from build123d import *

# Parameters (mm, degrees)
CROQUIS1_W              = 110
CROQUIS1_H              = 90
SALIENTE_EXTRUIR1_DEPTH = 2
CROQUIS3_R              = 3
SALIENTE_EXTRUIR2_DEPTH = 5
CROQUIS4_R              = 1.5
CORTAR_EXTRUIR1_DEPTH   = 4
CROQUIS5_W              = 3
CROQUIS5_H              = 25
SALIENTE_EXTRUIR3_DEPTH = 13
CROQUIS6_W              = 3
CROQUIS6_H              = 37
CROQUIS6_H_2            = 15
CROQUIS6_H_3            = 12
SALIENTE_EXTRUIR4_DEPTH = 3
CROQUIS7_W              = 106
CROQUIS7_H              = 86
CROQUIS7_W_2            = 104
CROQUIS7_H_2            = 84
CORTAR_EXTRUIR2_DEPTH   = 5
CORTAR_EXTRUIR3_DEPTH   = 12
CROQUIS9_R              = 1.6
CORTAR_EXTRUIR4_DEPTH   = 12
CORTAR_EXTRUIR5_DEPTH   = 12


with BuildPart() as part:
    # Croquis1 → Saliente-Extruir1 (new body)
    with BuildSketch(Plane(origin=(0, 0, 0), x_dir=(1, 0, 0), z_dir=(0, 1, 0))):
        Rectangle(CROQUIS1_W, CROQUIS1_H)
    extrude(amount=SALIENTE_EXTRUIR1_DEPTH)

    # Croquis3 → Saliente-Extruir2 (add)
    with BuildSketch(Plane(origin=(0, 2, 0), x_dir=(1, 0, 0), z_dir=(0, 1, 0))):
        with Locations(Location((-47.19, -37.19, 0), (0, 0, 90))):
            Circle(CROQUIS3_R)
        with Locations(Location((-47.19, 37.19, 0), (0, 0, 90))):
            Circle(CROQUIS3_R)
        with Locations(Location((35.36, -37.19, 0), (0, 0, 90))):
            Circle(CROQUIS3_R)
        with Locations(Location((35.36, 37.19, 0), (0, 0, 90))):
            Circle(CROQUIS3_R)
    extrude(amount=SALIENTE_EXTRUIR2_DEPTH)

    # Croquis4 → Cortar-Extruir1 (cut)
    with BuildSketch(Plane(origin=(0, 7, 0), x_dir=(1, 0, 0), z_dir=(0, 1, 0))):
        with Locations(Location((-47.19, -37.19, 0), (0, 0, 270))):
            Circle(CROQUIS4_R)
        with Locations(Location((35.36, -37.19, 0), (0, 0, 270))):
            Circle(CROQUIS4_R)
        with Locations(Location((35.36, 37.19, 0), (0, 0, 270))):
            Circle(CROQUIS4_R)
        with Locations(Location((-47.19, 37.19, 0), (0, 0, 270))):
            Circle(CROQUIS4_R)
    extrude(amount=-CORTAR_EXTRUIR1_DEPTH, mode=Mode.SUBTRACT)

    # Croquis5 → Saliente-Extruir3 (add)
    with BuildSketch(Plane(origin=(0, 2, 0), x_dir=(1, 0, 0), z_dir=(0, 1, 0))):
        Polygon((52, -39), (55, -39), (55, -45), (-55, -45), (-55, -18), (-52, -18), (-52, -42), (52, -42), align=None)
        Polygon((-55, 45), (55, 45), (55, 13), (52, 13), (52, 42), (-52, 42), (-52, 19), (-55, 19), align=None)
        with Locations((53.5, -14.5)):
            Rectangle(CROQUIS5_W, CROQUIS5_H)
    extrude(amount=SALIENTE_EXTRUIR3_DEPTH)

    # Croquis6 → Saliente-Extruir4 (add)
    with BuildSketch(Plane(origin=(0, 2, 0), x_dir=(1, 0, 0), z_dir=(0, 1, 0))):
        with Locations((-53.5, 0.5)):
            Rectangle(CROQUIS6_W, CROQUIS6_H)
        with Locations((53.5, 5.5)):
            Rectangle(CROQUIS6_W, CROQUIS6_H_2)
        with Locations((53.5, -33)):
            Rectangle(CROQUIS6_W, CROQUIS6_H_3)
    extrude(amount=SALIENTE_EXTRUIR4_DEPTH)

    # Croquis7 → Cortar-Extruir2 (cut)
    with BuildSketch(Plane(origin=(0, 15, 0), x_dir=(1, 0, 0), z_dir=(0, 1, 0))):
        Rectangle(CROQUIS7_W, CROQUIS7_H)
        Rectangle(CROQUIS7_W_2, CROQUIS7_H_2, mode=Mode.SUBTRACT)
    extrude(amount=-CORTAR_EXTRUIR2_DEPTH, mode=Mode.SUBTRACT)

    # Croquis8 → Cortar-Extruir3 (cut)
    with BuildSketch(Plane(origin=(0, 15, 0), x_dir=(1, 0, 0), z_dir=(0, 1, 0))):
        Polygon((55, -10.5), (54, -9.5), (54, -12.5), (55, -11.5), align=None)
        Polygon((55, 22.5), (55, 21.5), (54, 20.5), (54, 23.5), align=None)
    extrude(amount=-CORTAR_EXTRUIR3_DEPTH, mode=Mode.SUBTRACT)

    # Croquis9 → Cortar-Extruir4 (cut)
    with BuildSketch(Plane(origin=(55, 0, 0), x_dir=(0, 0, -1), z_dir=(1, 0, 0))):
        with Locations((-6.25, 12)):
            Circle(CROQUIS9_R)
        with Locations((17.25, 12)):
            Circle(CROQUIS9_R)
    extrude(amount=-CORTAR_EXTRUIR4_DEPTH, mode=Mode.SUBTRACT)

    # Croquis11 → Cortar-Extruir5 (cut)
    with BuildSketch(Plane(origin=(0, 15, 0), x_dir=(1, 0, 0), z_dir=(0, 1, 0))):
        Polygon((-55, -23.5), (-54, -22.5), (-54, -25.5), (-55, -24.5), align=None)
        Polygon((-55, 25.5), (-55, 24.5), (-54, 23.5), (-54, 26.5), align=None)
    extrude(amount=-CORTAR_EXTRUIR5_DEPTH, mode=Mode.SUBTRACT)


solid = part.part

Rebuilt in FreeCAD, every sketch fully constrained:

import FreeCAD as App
import Part
import Sketcher
from FreeCAD import Vector


def add_polygon(sketch, points):
    """Adds a closed chain of lines whose ends are joined by coincident constraints."""
    first, n = sketch.GeometryCount, len(points)
    for a, b in zip(points, points[1:] + points[:1]):
        sketch.addGeometry(Part.LineSegment(App.Vector(*a, 0), App.Vector(*b, 0)), False)
    for i in range(n):
        sketch.addConstraint(Sketcher.Constraint("Coincident", first + i, 2, first + (i + 1) % n, 1))

doc = App.newDocument("Part")
params = doc.addObject("Spreadsheet::Sheet", "Params")
for row, (alias, value) in enumerate([
    ("sketch1_width", "110 mm"),
    ("sketch1_height", "90 mm"),
    ("pad1_length", "2 mm"),
    ("sketch2_diameter", "6 mm"),
    ("pad2_length", "5 mm"),
    ("sketch3_diameter", "3 mm"),
    ("pocket1_length", "4 mm"),
    ("sketch4_width", "3 mm"),
    ("sketch4_width2", "104 mm"),
    ("sketch4_height", "24 mm"),
    ("sketch4_height2", "27 mm"),
    ("sketch4_height3", "26 mm"),
    ("pad3_length", "13 mm"),
    ("sketch5_width", "3 mm"),
    ("sketch5_height", "37 mm"),
    ("sketch5_height2", "15 mm"),
    ("sketch5_height3", "12 mm"),
    ("pad4_length", "3 mm"),
    ("sketch6_width", "106 mm"),
    ("sketch6_width2", "104 mm"),
    ("sketch6_height", "86 mm"),
    ("sketch6_height2", "84 mm"),
    ("pocket2_length", "5 mm"),
    ("sketch7_height", "3 mm"),
    ("sketch7_height2", "1 mm"),
    ("pocket3_length", "12 mm"),
    ("sketch8_diameter", "3.2 mm"),
    ("pocket4_length", "12 mm"),
    ("sketch9_height", "1 mm"),
    ("sketch9_height2", "3 mm"),
    ("pocket5_length", "12 mm"),
], start=1):
    params.set(f"A{row}", alias)
    params.set(f"B{row}", "=" + value)
    params.setAlias(f"B{row}", alias)

body = doc.addObject("PartDesign::Body", "Body")

sketch1 = body.newObject("Sketcher::SketchObject", "Sketch")
sketch1.AttachmentSupport = (doc.getObject("XZ_Plane"), [""])
sketch1.MapMode = "FlatFace"
add_polygon(sketch1, [(-55, -45), (-55, 45), (55, 45), (55, -45)])
sketch1.addConstraint(Sketcher.Constraint("Vertical", 0))
sketch1.addConstraint(Sketcher.Constraint("Horizontal", 1))
sketch1.addConstraint(Sketcher.Constraint("Vertical", 2))
sketch1.addConstraint(Sketcher.Constraint("Horizontal", 3))
sketch1.addConstraint(Sketcher.Constraint("Symmetric", 0, 2, 2, 2, -1, 1))
sketch1.addConstraint(Sketcher.Constraint("DistanceX", 1, 1, 1, 2, 110.0))
sketch1.addConstraint(Sketcher.Constraint("DistanceY", 0, 1, 0, 2, 90.0))
sketch1.setExpression("Constraints[9]", "Params.sketch1_width")
sketch1.setExpression("Constraints[10]", "Params.sketch1_height")
pad1 = body.newObject("PartDesign::Pad", "Pad")
pad1.Profile = sketch1
pad1.setExpression("Length", "Params.pad1_length")
pad1.Reversed = True

sketch2 = body.newObject("Sketcher::SketchObject", "Sketch001")
sketch2.AttachmentSupport = (doc.getObject("XZ_Plane"), [""])
sketch2.MapMode = "FlatFace"
sketch2.AttachmentOffset = App.Placement(Vector(0, 0, -2), App.Rotation())
sketch2.addGeometry(Part.Circle(Vector(-47.2, 37.2, 0), Vector(0, 0, 1), 3), False)
sketch2.addGeometry(Part.Circle(Vector(-47.2, -37.2, 0), Vector(0, 0, 1), 3), False)
sketch2.addGeometry(Part.Circle(Vector(35.4, 37.2, 0), Vector(0, 0, 1), 3), False)
sketch2.addGeometry(Part.Circle(Vector(35.4, -37.2, 0), Vector(0, 0, 1), 3), False)
sketch2.addConstraint(Sketcher.Constraint("Equal", 0, 1))
sketch2.addConstraint(Sketcher.Constraint("Equal", 1, 2))
sketch2.addConstraint(Sketcher.Constraint("Equal", 2, 3))
sketch2.addConstraint(Sketcher.Constraint("Symmetric", 0, 3, 1, 3, -1))
sketch2.addConstraint(Sketcher.Constraint("Symmetric", 2, 3, 3, 3, -1))
sketch2.addConstraint(Sketcher.Constraint("Horizontal", 0, 3, 2, 3))
sketch2.addConstraint(Sketcher.Constraint("Diameter", 0, 6.0))
sketch2.addConstraint(Sketcher.Constraint("DistanceX", 0, 3, -1, 1, 47.19))
sketch2.addConstraint(Sketcher.Constraint("DistanceY", -1, 1, 0, 3, 37.19))
sketch2.addConstraint(Sketcher.Constraint("DistanceX", -1, 1, 2, 3, 35.36))
sketch2.setExpression("Constraints[6]", "Params.sketch2_diameter")
pad2 = body.newObject("PartDesign::Pad", "Pad001")
pad2.Profile = sketch2
pad2.setExpression("Length", "Params.pad2_length")
pad2.Reversed = True

sketch3 = body.newObject("Sketcher::SketchObject", "Sketch002")
sketch3.AttachmentSupport = (doc.getObject("XZ_Plane"), [""])
sketch3.MapMode = "FlatFace"
sketch3.AttachmentOffset = App.Placement(Vector(0, 0, -7), App.Rotation())
sketch3.addGeometry(Part.Circle(Vector(-47.2, 37.2, 0), Vector(0, 0, 1), 1.5), False)
sketch3.addGeometry(Part.Circle(Vector(35.4, 37.2, 0), Vector(0, 0, 1), 1.5), False)
sketch3.addGeometry(Part.Circle(Vector(35.4, -37.2, 0), Vector(0, 0, 1), 1.5), False)
sketch3.addGeometry(Part.Circle(Vector(-47.2, -37.2, 0), Vector(0, 0, 1), 1.5), False)
sketch3.addConstraint(Sketcher.Constraint("Equal", 0, 1))
sketch3.addConstraint(Sketcher.Constraint("Equal", 1, 2))
sketch3.addConstraint(Sketcher.Constraint("Equal", 2, 3))
sketch3.addConstraint(Sketcher.Constraint("Symmetric", 1, 3, 2, 3, -1))
sketch3.addConstraint(Sketcher.Constraint("Symmetric", 0, 3, 3, 3, -1))
sketch3.addConstraint(Sketcher.Constraint("Horizontal", 0, 3, 1, 3))
sketch3.addConstraint(Sketcher.Constraint("Diameter", 0, 3.0))
sketch3.addConstraint(Sketcher.Constraint("DistanceX", 0, 3, -1, 1, 47.19))
sketch3.addConstraint(Sketcher.Constraint("DistanceY", -1, 1, 0, 3, 37.19))
sketch3.addConstraint(Sketcher.Constraint("DistanceX", -1, 1, 1, 3, 35.36))
sketch3.setExpression("Constraints[6]", "Params.sketch3_diameter")
pocket1 = body.newObject("PartDesign::Pocket", "Pocket")
pocket1.Profile = sketch3
pocket1.setExpression("Length", "Params.pocket1_length")
pocket1.Reversed = True

sketch4 = body.newObject("Sketcher::SketchObject", "Sketch003")
sketch4.AttachmentSupport = (doc.getObject("XZ_Plane"), [""])
sketch4.MapMode = "FlatFace"
sketch4.AttachmentOffset = App.Placement(Vector(0, 0, -2), App.Rotation())
add_polygon(sketch4, [(55, 39), (52, 39), (52, 42), (-52, 42), (-52, 18), (-55, 18), (-55, 45), (55, 45)])
add_polygon(sketch4, [(55, -45), (-55, -45), (-55, -19), (-52, -19), (-52, -42), (52, -42), (52, -13), (55, -13)])
add_polygon(sketch4, [(52, 2), (52, 27), (55, 27), (55, 2)])
sketch4.addConstraint(Sketcher.Constraint("Horizontal", 0))
sketch4.addConstraint(Sketcher.Constraint("Vertical", 1))
sketch4.addConstraint(Sketcher.Constraint("Horizontal", 2))
sketch4.addConstraint(Sketcher.Constraint("Vertical", 3))
sketch4.addConstraint(Sketcher.Constraint("Horizontal", 4))
sketch4.addConstraint(Sketcher.Constraint("Vertical", 5))
sketch4.addConstraint(Sketcher.Constraint("Horizontal", 6))
sketch4.addConstraint(Sketcher.Constraint("Vertical", 7))
sketch4.addConstraint(Sketcher.Constraint("Horizontal", 8))
sketch4.addConstraint(Sketcher.Constraint("Vertical", 9))
sketch4.addConstraint(Sketcher.Constraint("Horizontal", 10))
sketch4.addConstraint(Sketcher.Constraint("Vertical", 11))
sketch4.addConstraint(Sketcher.Constraint("Horizontal", 12))
sketch4.addConstraint(Sketcher.Constraint("Vertical", 13))
sketch4.addConstraint(Sketcher.Constraint("Horizontal", 14))
sketch4.addConstraint(Sketcher.Constraint("Vertical", 15))
sketch4.addConstraint(Sketcher.Constraint("Vertical", 16))
sketch4.addConstraint(Sketcher.Constraint("Horizontal", 17))
sketch4.addConstraint(Sketcher.Constraint("Vertical", 18))
sketch4.addConstraint(Sketcher.Constraint("Horizontal", 19))
sketch4.addConstraint(Sketcher.Constraint("Symmetric", 6, 2, 8, 2, -1, 1))
sketch4.addConstraint(Sketcher.Constraint("Symmetric", 1, 2, 11, 2, -1, 1))
sketch4.addConstraint(Sketcher.Constraint("Vertical", 5, 2, 8, 2))
sketch4.addConstraint(Sketcher.Constraint("Vertical", 3, 2, 10, 2))
sketch4.addConstraint(Sketcher.Constraint("Vertical", 1, 2, 12, 2))
sketch4.addConstraint(Sketcher.Constraint("Vertical", 7, 2, 14, 2))
sketch4.addConstraint(Sketcher.Constraint("Vertical", 13, 2, 16, 2))
sketch4.addConstraint(Sketcher.Constraint("Vertical", 15, 2, 17, 2))
sketch4.addConstraint(Sketcher.Constraint("Equal", 19, 1))
sketch4.addConstraint(Sketcher.Constraint("DistanceX", 0, 2, 0, 1, 3.0))
sketch4.addConstraint(Sketcher.Constraint("DistanceX", 2, 2, 2, 1, 104.0))
sketch4.addConstraint(Sketcher.Constraint("DistanceY", 3, 2, 3, 1, 24.0))
sketch4.addConstraint(Sketcher.Constraint("DistanceY", 5, 1, 5, 2, 27.0))
sketch4.addConstraint(Sketcher.Constraint("DistanceY", 9, 1, 9, 2, 26.0))
sketch4.addConstraint(Sketcher.Constraint("DistanceY", 13, 1, 13, 2, 29.0))
sketch4.addConstraint(Sketcher.Constraint("DistanceY", 16, 1, 16, 2, 25.0))
sketch4.addConstraint(Sketcher.Constraint("DistanceY", -1, 1, 0, 2, 39.0))
sketch4.addConstraint(Sketcher.Constraint("DistanceY", -1, 1, 16, 2, 27.0))
sketch4.setExpression("Constraints[49]", "Params.sketch4_width")
sketch4.setExpression("Constraints[50]", "Params.sketch4_width2")
sketch4.setExpression("Constraints[51]", "Params.sketch4_height")
sketch4.setExpression("Constraints[52]", "Params.sketch4_height2")
sketch4.setExpression("Constraints[53]", "Params.sketch4_height3")
pad3 = body.newObject("PartDesign::Pad", "Pad002")
pad3.Profile = sketch4
pad3.setExpression("Length", "Params.pad3_length")
pad3.Reversed = True

sketch5 = body.newObject("Sketcher::SketchObject", "Sketch004")
sketch5.AttachmentSupport = (doc.getObject("XZ_Plane"), [""])
sketch5.MapMode = "FlatFace"
sketch5.AttachmentOffset = App.Placement(Vector(0, 0, -2), App.Rotation())
add_polygon(sketch5, [(-55, -19), (-55, 18), (-52, 18), (-52, -19)])
add_polygon(sketch5, [(52, -13), (52, 2), (55, 2), (55, -13)])
add_polygon(sketch5, [(52, 27), (52, 39), (55, 39), (55, 27)])
sketch5.addConstraint(Sketcher.Constraint("Vertical", 0))
sketch5.addConstraint(Sketcher.Constraint("Horizontal", 1))
sketch5.addConstraint(Sketcher.Constraint("Vertical", 2))
sketch5.addConstraint(Sketcher.Constraint("Horizontal", 3))
sketch5.addConstraint(Sketcher.Constraint("Vertical", 4))
sketch5.addConstraint(Sketcher.Constraint("Horizontal", 5))
sketch5.addConstraint(Sketcher.Constraint("Vertical", 6))
sketch5.addConstraint(Sketcher.Constraint("Horizontal", 7))
sketch5.addConstraint(Sketcher.Constraint("Vertical", 8))
sketch5.addConstraint(Sketcher.Constraint("Horizontal", 9))
sketch5.addConstraint(Sketcher.Constraint("Vertical", 10))
sketch5.addConstraint(Sketcher.Constraint("Horizontal", 11))
sketch5.addConstraint(Sketcher.Constraint("Vertical", 7, 2, 8, 2))
sketch5.addConstraint(Sketcher.Constraint("Vertical", 6, 2, 9, 2))
sketch5.addConstraint(Sketcher.Constraint("Equal", 3, 5))
sketch5.addConstraint(Sketcher.Constraint("DistanceX", 1, 1, 1, 2, 3.0))
sketch5.addConstraint(Sketcher.Constraint("DistanceY", 0, 1, 0, 2, 37.0))
sketch5.addConstraint(Sketcher.Constraint("DistanceY", 4, 1, 4, 2, 15.0))
sketch5.addConstraint(Sketcher.Constraint("DistanceY", 8, 1, 8, 2, 12.0))
sketch5.addConstraint(Sketcher.Constraint("DistanceX", 0, 2, -1, 1, 55.0))
sketch5.addConstraint(Sketcher.Constraint("DistanceY", -1, 1, 0, 2, 18.0))
sketch5.addConstraint(Sketcher.Constraint("DistanceX", -1, 1, 4, 2, 52.0))
sketch5.addConstraint(Sketcher.Constraint("DistanceY", -1, 1, 4, 2, 2.0))
sketch5.addConstraint(Sketcher.Constraint("DistanceY", -1, 1, 8, 2, 39.0))
sketch5.setExpression("Constraints[27]", "Params.sketch5_width")
sketch5.setExpression("Constraints[28]", "Params.sketch5_height")
sketch5.setExpression("Constraints[29]", "Params.sketch5_height2")
sketch5.setExpression("Constraints[30]", "Params.sketch5_height3")
pad4 = body.newObject("PartDesign::Pad", "Pad003")
pad4.Profile = sketch5
pad4.setExpression("Length", "Params.pad4_length")
pad4.Reversed = True

sketch6 = body.newObject("Sketcher::SketchObject", "Sketch005")
sketch6.AttachmentSupport = (doc.getObject("XZ_Plane"), [""])
sketch6.MapMode = "FlatFace"
sketch6.AttachmentOffset = App.Placement(Vector(0, 0, -15), App.Rotation())
add_polygon(sketch6, [(-53, -43), (-53, 43), (53, 43), (53, -43)])
add_polygon(sketch6, [(52, 42), (-52, 42), (-52, -42), (52, -42)])
sketch6.addConstraint(Sketcher.Constraint("Vertical", 0))
sketch6.addConstraint(Sketcher.Constraint("Horizontal", 1))
sketch6.addConstraint(Sketcher.Constraint("Vertical", 2))
sketch6.addConstraint(Sketcher.Constraint("Horizontal", 3))
sketch6.addConstraint(Sketcher.Constraint("Horizontal", 4))
sketch6.addConstraint(Sketcher.Constraint("Vertical", 5))
sketch6.addConstraint(Sketcher.Constraint("Horizontal", 6))
sketch6.addConstraint(Sketcher.Constraint("Vertical", 7))
sketch6.addConstraint(Sketcher.Constraint("Symmetric", 0, 2, 2, 2, -1, 1))
sketch6.addConstraint(Sketcher.Constraint("Symmetric", 4, 2, 6, 2, -1, 1))
sketch6.addConstraint(Sketcher.Constraint("DistanceX", 1, 1, 1, 2, 106.0))
sketch6.addConstraint(Sketcher.Constraint("DistanceX", 4, 2, 4, 1, 104.0))
sketch6.addConstraint(Sketcher.Constraint("DistanceY", 0, 1, 0, 2, 86.0))
sketch6.addConstraint(Sketcher.Constraint("DistanceY", 5, 2, 5, 1, 84.0))
sketch6.setExpression("Constraints[18]", "Params.sketch6_width")
sketch6.setExpression("Constraints[19]", "Params.sketch6_width2")
sketch6.setExpression("Constraints[20]", "Params.sketch6_height")
sketch6.setExpression("Constraints[21]", "Params.sketch6_height2")
pocket2 = body.newObject("PartDesign::Pocket", "Pocket001")
pocket2.Profile = sketch6
pocket2.setExpression("Length", "Params.pocket2_length")
pocket2.Reversed = True

sketch7 = body.newObject("Sketcher::SketchObject", "Sketch006")
sketch7.AttachmentSupport = (doc.getObject("XZ_Plane"), [""])
sketch7.MapMode = "FlatFace"
sketch7.AttachmentOffset = App.Placement(Vector(0, 0, -15), App.Rotation())
add_polygon(sketch7, [(55, 10.5), (54, 9.5), (54, 12.5), (55, 11.5)])
add_polygon(sketch7, [(55, -21.5), (55, -22.5), (54, -23.5), (54, -20.5)])
sketch7.addConstraint(Sketcher.Constraint("Vertical", 1))
sketch7.addConstraint(Sketcher.Constraint("Vertical", 3))
sketch7.addConstraint(Sketcher.Constraint("Vertical", 4))
sketch7.addConstraint(Sketcher.Constraint("Vertical", 6))
sketch7.addConstraint(Sketcher.Constraint("Perpendicular", 0, 2))
sketch7.addConstraint(Sketcher.Constraint("Perpendicular", 2, 5))
sketch7.addConstraint(Sketcher.Constraint("Perpendicular", 5, 7))
sketch7.addConstraint(Sketcher.Constraint("Vertical", 3, 2, 4, 2))
sketch7.addConstraint(Sketcher.Constraint("Vertical", 1, 2, 5, 2))
sketch7.addConstraint(Sketcher.Constraint("Equal", 3, 4))
sketch7.addConstraint(Sketcher.Constraint("Equal", 0, 2))
sketch7.addConstraint(Sketcher.Constraint("DistanceY", 1, 1, 1, 2, 3.0))
sketch7.addConstraint(Sketcher.Constraint("DistanceY", 3, 2, 3, 1, 1.0))
sketch7.addConstraint(Sketcher.Constraint("DistanceX", -1, 1, 0, 2, 54.0))
sketch7.addConstraint(Sketcher.Constraint("DistanceY", 4, 2, 0, 2, 32.0))
sketch7.addConstraint(Sketcher.Constraint("DistanceY", -1, 1, 0, 2, 9.5))
sketch7.setExpression("Constraints[19]", "Params.sketch7_height")
sketch7.setExpression("Constraints[20]", "Params.sketch7_height2")
pocket3 = body.newObject("PartDesign::Pocket", "Pocket002")
pocket3.Profile = sketch7
pocket3.setExpression("Length", "Params.pocket3_length")
pocket3.Reversed = True

sketch8 = body.newObject("Sketcher::SketchObject", "Sketch007")
sketch8.AttachmentSupport = (doc.getObject("YZ_Plane"), [""])
sketch8.MapMode = "FlatFace"
sketch8.AttachmentOffset = App.Placement(Vector(0, 0, 55), App.Rotation())
sketch8.addGeometry(Part.Circle(Vector(12, 6.2, 0), Vector(0, 0, 1), 1.6), False)
sketch8.addGeometry(Part.Circle(Vector(12, -17.2, 0), Vector(0, 0, 1), 1.6), False)
sketch8.addConstraint(Sketcher.Constraint("Equal", 0, 1))
sketch8.addConstraint(Sketcher.Constraint("Vertical", 0, 3, 1, 3))
sketch8.addConstraint(Sketcher.Constraint("Diameter", 0, 3.2))
sketch8.addConstraint(Sketcher.Constraint("DistanceX", -1, 1, 0, 3, 12.0))
sketch8.addConstraint(Sketcher.Constraint("DistanceY", 1, 3, 0, 3, 23.5))
sketch8.addConstraint(Sketcher.Constraint("DistanceY", -1, 1, 0, 3, 6.25))
sketch8.setExpression("Constraints[2]", "Params.sketch8_diameter")
pocket4 = body.newObject("PartDesign::Pocket", "Pocket003")
pocket4.Profile = sketch8
pocket4.setExpression("Length", "Params.pocket4_length")

sketch9 = body.newObject("Sketcher::SketchObject", "Sketch008")
sketch9.AttachmentSupport = (doc.getObject("XZ_Plane"), [""])
sketch9.MapMode = "FlatFace"
sketch9.AttachmentOffset = App.Placement(Vector(0, 0, -15), App.Rotation())
add_polygon(sketch9, [(-54, 22.5), (-55, 23.5), (-55, 24.5), (-54, 25.5)])
add_polygon(sketch9, [(-55, -25.5), (-55, -24.5), (-54, -23.5), (-54, -26.5)])
sketch9.addConstraint(Sketcher.Constraint("Vertical", 1))
sketch9.addConstraint(Sketcher.Constraint("Vertical", 3))
sketch9.addConstraint(Sketcher.Constraint("Vertical", 4))
sketch9.addConstraint(Sketcher.Constraint("Vertical", 6))
sketch9.addConstraint(Sketcher.Constraint("Symmetric", 1, 2, 4, 2, -1))
sketch9.addConstraint(Sketcher.Constraint("Perpendicular", 0, 2))
sketch9.addConstraint(Sketcher.Constraint("Parallel", 2, 5))
sketch9.addConstraint(Sketcher.Constraint("Perpendicular", 5, 7))
sketch9.addConstraint(Sketcher.Constraint("Vertical", 3, 2, 5, 2))
sketch9.addConstraint(Sketcher.Constraint("Equal", 1, 4))
sketch9.addConstraint(Sketcher.Constraint("Equal", 0, 2))
sketch9.addConstraint(Sketcher.Constraint("DistanceY", 1, 1, 1, 2, 1.0))
sketch9.addConstraint(Sketcher.Constraint("DistanceY", 3, 2, 3, 1, 3.0))
sketch9.addConstraint(Sketcher.Constraint("DistanceX", 0, 2, -1, 1, 55.0))
sketch9.addConstraint(Sketcher.Constraint("DistanceY", 4, 2, 3, 2, 47.0))
sketch9.setExpression("Constraints[19]", "Params.sketch9_height")
sketch9.setExpression("Constraints[20]", "Params.sketch9_height2")
pocket5 = body.newObject("PartDesign::Pocket", "Pocket004")
pocket5.Profile = sketch9
pocket5.setExpression("Length", "Params.pocket5_length")
pocket5.Reversed = True

doc.recompute()
